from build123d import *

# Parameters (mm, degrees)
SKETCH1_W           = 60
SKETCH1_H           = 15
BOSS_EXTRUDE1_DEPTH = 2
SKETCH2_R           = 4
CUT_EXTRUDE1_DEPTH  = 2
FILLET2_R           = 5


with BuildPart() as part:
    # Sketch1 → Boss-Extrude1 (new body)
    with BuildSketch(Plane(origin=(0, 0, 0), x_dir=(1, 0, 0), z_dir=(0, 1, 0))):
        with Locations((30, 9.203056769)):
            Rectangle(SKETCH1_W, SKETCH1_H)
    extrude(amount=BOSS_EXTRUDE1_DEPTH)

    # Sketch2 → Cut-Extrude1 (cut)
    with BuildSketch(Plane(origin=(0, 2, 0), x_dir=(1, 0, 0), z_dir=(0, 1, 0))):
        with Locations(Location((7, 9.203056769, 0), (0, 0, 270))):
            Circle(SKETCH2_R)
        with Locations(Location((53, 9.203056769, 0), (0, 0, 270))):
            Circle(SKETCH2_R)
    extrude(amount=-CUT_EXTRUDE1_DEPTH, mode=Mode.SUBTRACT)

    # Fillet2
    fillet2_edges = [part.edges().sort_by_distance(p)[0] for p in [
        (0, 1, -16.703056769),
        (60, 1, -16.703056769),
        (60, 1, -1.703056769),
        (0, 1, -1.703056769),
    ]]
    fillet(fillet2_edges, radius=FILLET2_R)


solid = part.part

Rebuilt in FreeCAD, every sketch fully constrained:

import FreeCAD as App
import Part
import Sketcher

V = App.Vector
Q = App.Units.Quantity


def edges_at(feature, points):
    """Names of the edges that pass closest to the given points."""
    edges = feature.Shape.Edges
    near = lambda p: min(range(len(edges)), key=lambda i: edges[i].distToShape(Part.Vertex(*p))[0])
    return sorted({f"Edge{near(p) + 1}" for p in points})


def add_polygon(sketch, points):
    """Adds a closed chain of lines whose ends are joined by coincident constraints."""
    first, n = sketch.GeometryCount, len(points)
    for a, b in zip(points, points[1:] + points[:1]):
        sketch.addGeometry(Part.LineSegment(App.Vector(*a, 0), App.Vector(*b, 0)), False)
    for i in range(n):
        sketch.addConstraint(Sketcher.Constraint("Coincident", first + i, 2, first + (i + 1) % n, 1))

doc = App.newDocument("Part")
params = doc.addObject("Spreadsheet::Sheet", "Params")
for row, (alias, value) in enumerate([
    ("sketch1_width", "60 mm"),
    ("sketch1_height", "15 mm"),
    ("pad1_length", "2 mm"),
    ("sketch2_diameter", "8 mm"),
    ("pocket1_length", "2 mm"),
    ("fillet_radius", "5 mm"),
], start=1):
    params.set(f"A{row}", alias)
    params.set(f"B{row}", "=" + value)
    params.setAlias(f"B{row}", alias)

body = doc.addObject("PartDesign::Body", "Body")

sketch1 = doc.addObject("Sketcher::SketchObject", "Sketch")
body.addObject(sketch1)
sketch1.AttachmentSupport = (doc.XZ_Plane, [""])
sketch1.MapMode = "FlatFace"
add_polygon(sketch1, [(0, -16.703057), (0, -1.703057), (60, -1.703057), (60, -16.703057)])
sketch1.addConstraint([
    Sketcher.Constraint("Vertical", 0),
    Sketcher.Constraint("Horizontal", 1),
    Sketcher.Constraint("Vertical", 2),
    Sketcher.Constraint("Horizontal", 3),
    Sketcher.Constraint("PointOnObject", 0, 2, -2),
    Sketcher.Constraint("DistanceX", 1, 1, 1, 2, Q("60 mm")),
    Sketcher.Constraint("DistanceY", 0, 1, 0, 2, Q("15 mm")),
    Sketcher.Constraint("DistanceY", 0, 2, -1, 1, Q("1.703057 mm")),
])
sketch1.setExpression("Constraints[9]", "Params.sketch1_width")
sketch1.setExpression("Constraints[10]", "Params.sketch1_height")
pad1 = doc.addObject("PartDesign::Pad", "Pad")
body.addObject(pad1)
pad1.Profile = sketch1
pad1.setExpression("Length", "Params.pad1_length")
pad1.Reversed = True

sketch2 = doc.addObject("Sketcher::SketchObject", "Sketch001")
body.addObject(sketch2)
sketch2.AttachmentSupport = (doc.XZ_Plane, [""])
sketch2.MapMode = "FlatFace"
sketch2.AttachmentOffset = App.Placement(V(0, 0, -2), App.Rotation())
sketch2.addGeometry([
    Part.Circle(V(7, -9.203057, 0), V(0, 0, 1), 4),
    Part.Circle(V(53, -9.203057, 0), V(0, 0, 1), 4),
], False)
sketch2.addConstraint([
    Sketcher.Constraint("Equal", 0, 1),
    Sketcher.Constraint("Horizontal", 0, 3, 1, 3),
    Sketcher.Constraint("Diameter", 0, Q("8 mm")),
    Sketcher.Constraint("DistanceX", -1, 1, 0, 3, Q("7 mm")),
    Sketcher.Constraint("DistanceX", -1, 1, 1, 3, Q("53 mm")),
    Sketcher.Constraint("DistanceY", 0, 3, -1, 1, Q("9.203057 mm")),
])
sketch2.setExpression("Constraints[2]", "Params.sketch2_diameter")
pocket1 = doc.addObject("PartDesign::Pocket", "Pocket")
body.addObject(pocket1)
pocket1.Profile = sketch2
pocket1.setExpression("Length", "Params.pocket1_length")
pocket1.Reversed = True
doc.recompute()

fillet = doc.addObject("PartDesign::Fillet", "Fillet")
body.addObject(fillet)
fillet.Base = (pocket1, edges_at(pocket1, [
    (0, 1, -16.703),
    (60, 1, -16.703),
    (60, 1, -1.703),
    (0, 1, -1.703),
]))
fillet.setExpression("Radius", "Params.fillet_radius")

doc.recompute()
